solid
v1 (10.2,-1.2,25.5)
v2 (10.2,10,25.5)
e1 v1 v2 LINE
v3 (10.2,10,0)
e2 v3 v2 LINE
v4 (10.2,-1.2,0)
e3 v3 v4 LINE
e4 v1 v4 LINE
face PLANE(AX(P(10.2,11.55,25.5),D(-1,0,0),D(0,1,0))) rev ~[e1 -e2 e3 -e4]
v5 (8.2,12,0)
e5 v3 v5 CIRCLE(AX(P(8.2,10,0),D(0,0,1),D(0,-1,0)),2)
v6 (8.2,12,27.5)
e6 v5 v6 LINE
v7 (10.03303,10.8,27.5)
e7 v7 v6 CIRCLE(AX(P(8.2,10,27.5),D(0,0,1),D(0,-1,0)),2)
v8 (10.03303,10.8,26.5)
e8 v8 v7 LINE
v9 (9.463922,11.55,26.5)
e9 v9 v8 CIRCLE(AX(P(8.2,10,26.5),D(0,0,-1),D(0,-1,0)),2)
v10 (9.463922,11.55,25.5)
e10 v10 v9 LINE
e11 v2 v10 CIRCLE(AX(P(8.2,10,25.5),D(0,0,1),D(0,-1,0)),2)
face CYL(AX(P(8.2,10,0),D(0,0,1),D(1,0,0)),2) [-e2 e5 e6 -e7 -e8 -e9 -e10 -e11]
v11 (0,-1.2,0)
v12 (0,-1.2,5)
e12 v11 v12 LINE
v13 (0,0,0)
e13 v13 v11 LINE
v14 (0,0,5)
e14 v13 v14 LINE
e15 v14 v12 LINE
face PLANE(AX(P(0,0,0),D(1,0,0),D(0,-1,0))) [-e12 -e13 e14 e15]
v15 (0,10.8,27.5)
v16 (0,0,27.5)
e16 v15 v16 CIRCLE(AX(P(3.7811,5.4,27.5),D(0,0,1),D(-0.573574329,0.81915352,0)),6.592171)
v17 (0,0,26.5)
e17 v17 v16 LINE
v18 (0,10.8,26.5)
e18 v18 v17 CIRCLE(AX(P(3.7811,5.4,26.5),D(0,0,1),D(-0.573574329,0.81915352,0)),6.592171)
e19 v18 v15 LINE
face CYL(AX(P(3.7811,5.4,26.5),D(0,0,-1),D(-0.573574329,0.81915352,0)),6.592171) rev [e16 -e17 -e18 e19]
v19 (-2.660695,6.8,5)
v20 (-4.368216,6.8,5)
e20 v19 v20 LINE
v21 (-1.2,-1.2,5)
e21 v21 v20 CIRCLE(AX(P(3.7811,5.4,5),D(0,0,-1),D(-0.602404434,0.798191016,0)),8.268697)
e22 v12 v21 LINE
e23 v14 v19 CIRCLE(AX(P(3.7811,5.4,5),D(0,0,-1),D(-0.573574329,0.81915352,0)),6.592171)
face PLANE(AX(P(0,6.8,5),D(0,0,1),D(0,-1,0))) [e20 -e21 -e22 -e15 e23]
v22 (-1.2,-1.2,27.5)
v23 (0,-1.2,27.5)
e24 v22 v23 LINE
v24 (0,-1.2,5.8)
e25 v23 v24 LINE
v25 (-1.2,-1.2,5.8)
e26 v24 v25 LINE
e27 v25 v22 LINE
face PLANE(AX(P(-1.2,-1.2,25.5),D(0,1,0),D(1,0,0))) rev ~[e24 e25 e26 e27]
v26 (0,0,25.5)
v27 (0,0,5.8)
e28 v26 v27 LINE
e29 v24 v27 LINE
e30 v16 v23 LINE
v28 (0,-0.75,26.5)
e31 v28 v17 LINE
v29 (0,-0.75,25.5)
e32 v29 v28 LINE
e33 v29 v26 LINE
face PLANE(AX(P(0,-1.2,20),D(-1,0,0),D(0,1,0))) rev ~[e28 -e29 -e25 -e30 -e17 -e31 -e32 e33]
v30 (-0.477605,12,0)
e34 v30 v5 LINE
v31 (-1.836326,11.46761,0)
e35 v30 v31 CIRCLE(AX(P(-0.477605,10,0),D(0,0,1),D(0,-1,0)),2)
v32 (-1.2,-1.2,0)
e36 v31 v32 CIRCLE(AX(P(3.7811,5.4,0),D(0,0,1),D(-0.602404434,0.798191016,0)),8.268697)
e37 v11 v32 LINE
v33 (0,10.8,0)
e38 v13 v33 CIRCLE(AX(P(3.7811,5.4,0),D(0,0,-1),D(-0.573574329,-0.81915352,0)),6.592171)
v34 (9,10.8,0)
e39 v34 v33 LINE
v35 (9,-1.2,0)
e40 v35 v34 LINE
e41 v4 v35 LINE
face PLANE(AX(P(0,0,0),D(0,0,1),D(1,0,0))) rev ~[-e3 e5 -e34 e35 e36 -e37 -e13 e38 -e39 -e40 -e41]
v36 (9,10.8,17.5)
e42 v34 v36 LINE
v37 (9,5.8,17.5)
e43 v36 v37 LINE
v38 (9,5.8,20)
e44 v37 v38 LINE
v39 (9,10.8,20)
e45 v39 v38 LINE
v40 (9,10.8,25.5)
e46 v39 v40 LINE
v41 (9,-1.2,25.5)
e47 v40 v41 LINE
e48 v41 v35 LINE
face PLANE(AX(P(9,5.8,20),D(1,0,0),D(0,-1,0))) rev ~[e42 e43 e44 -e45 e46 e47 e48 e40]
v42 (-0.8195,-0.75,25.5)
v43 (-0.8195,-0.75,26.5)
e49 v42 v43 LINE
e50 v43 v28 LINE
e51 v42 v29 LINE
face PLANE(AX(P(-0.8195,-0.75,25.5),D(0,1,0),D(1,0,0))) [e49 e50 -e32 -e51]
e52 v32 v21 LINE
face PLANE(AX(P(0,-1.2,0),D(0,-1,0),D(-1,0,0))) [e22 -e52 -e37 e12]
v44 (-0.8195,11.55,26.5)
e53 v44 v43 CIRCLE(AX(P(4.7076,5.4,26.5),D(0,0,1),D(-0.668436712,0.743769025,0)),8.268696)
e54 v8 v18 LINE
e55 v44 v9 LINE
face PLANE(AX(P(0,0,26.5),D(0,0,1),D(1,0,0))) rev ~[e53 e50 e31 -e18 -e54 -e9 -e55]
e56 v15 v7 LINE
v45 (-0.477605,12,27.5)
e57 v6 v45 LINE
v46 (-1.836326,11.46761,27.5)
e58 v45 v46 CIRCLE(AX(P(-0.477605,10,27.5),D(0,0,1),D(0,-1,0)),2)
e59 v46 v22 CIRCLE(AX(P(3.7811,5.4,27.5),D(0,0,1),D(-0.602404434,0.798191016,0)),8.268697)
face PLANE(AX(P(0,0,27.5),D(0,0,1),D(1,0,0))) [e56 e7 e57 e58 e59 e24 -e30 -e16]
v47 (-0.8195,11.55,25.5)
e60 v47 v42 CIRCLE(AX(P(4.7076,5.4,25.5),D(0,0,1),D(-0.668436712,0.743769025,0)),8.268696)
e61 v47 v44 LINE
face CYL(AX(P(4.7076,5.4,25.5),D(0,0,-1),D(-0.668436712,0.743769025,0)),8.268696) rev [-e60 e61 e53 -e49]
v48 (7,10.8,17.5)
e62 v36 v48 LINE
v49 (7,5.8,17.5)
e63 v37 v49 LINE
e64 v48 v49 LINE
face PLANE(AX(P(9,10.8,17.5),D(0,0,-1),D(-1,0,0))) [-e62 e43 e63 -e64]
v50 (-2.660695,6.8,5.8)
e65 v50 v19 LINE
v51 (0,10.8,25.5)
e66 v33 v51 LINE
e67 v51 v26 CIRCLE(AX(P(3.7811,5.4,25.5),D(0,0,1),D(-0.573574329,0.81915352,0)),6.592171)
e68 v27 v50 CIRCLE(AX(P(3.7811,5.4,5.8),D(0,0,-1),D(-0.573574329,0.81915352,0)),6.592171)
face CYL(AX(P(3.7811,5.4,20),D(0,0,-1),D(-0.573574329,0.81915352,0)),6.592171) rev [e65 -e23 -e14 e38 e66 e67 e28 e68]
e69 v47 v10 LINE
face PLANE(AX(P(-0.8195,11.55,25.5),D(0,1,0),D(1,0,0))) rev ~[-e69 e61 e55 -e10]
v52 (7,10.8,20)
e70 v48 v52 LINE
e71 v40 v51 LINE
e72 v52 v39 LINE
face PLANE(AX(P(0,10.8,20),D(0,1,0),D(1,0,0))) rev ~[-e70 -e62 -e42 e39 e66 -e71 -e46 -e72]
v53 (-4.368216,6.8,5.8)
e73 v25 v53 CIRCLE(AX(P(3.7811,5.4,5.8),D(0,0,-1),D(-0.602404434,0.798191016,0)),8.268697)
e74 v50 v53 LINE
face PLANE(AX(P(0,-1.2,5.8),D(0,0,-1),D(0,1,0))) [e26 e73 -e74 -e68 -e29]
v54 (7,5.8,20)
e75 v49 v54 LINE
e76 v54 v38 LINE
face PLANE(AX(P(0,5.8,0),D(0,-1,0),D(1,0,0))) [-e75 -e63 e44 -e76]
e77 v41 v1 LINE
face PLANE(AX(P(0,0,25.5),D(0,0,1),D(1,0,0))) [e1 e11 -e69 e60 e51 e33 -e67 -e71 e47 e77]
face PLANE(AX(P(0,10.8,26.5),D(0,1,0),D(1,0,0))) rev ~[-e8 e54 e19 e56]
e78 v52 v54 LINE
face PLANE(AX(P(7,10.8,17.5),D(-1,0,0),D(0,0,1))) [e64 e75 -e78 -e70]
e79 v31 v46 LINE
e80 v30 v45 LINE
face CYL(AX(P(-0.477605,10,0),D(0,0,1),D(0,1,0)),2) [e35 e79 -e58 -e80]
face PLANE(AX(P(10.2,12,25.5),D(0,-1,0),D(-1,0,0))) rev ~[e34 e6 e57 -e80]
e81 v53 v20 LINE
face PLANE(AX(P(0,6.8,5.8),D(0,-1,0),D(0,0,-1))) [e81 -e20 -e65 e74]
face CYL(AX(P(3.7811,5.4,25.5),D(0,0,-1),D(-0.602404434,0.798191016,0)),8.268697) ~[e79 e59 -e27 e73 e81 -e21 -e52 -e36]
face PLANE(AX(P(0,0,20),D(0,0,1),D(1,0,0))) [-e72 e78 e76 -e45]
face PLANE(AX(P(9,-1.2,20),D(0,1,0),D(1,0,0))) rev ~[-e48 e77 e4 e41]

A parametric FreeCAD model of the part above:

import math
import FreeCAD as App
import Part
import Sketcher
Q = App.Units.Quantity


def edges_at(feature, points):
    """Names of the edges that pass closest to the given points."""
    edges = feature.Shape.Edges
    near = lambda p: min(range(len(edges)), key=lambda i: edges[i].distToShape(Part.Vertex(*p))[0])
    return sorted({f"Edge{near(p) + 1}" for p in points})

doc = App.newDocument("Part")
params = doc.addObject("Spreadsheet::Sheet", "Params")
for row, (alias, value) in enumerate([
    ("sketch1_width", "9 mm"),
    ("sketch1_width2", "1.2 mm"),
    ("pad1_length", "20 mm"),
    ("sketch2_width", "2 mm"),
    ("sketch2_height", "2.5 mm"),
    ("pad2_length", "5 mm"),
    ("sketch3_width", "8 mm"),
    ("sketch3_height", "0.8 mm"),
    ("sketch4_width", "9 mm"),
    ("sketch4_height", "12 mm"),
    ("sketch4_width2", "1.2 mm"),
    ("pad3_length", "5.5 mm"),
    ("sketch5_width", "11.4 mm"),
    ("sketch5_width2", "1.2 mm"),
    ("sketch5_height", "0.45 mm"),
    ("pad4_length", "1 mm"),
    ("sketch6_width", "10.2 mm"),
    ("sketch6_width2", "11.4 mm"),
    ("pad5_length", "1 mm"),
    ("fillet_radius", "2 mm"),
], start=1):
    params.set(f"A{row}", alias)
    params.set(f"B{row}", "=" + value)
    params.setAlias(f"B{row}", alias)

body = doc.addObject("PartDesign::Body", "Body")

# Sketch on XY plane
sketch1 = body.newObject("Sketcher::SketchObject", "Sketch")
sketch1.AttachmentSupport = (doc.getObject("XY_Plane"), [""])
sketch1.MapMode = "FlatFace"
sketch1.addGeometry(Part.LineSegment(App.Vector(0, -1.2, 0), App.Vector(0, 0, 0)), False)
sketch1.addGeometry(Part.ArcOfCircle(Part.Circle(App.Vector(3.8, 5.4, 0), App.Vector(0, 0, 1), 6.6), math.radians(125), math.radians(235)), False)
sketch1.addGeometry(Part.LineSegment(App.Vector(0, 10.8, 0), App.Vector(9, 10.8, 0)), False)
sketch1.addGeometry(Part.LineSegment(App.Vector(9, 10.8, 0), App.Vector(9, -1.2, 0)), False)
sketch1.addGeometry(Part.LineSegment(App.Vector(9, -1.2, 0), App.Vector(10.2, -1.2, 0)), False)
sketch1.addGeometry(Part.LineSegment(App.Vector(10.2, -1.2, 0), App.Vector(10.2, 12, 0)), False)
sketch1.addGeometry(Part.LineSegment(App.Vector(10.2, 12, 0), App.Vector(-1.2, 12, 0)), False)
sketch1.addGeometry(Part.ArcOfCircle(Part.Circle(App.Vector(3.8, 5.4, 0), App.Vector(0, 0, 1), 8.3), math.radians(127), math.radians(233)), False)
sketch1.addGeometry(Part.LineSegment(App.Vector(-1.2, -1.2, 0), App.Vector(0, -1.2, 0)), False)
sketch1.addConstraint(Sketcher.Constraint("Coincident", 0, 2, 1, 2))
sketch1.addConstraint(Sketcher.Constraint("Coincident", 1, 1, 2, 1))
sketch1.addConstraint(Sketcher.Constraint("Coincident", 2, 2, 3, 1))
sketch1.addConstraint(Sketcher.Constraint("Coincident", 3, 2, 4, 1))
sketch1.addConstraint(Sketcher.Constraint("Coincident", 4, 2, 5, 1))
sketch1.addConstraint(Sketcher.Constraint("Coincident", 5, 2, 6, 1))
sketch1.addConstraint(Sketcher.Constraint("Coincident", 6, 2, 7, 1))
sketch1.addConstraint(Sketcher.Constraint("Coincident", 7, 2, 8, 1))
sketch1.addConstraint(Sketcher.Constraint("Coincident", 8, 2, 0, 1))
sketch1.addConstraint(Sketcher.Constraint("Vertical", 0))
sketch1.addConstraint(Sketcher.Constraint("Horizontal", 2))
sketch1.addConstraint(Sketcher.Constraint("Vertical", 3))
sketch1.addConstraint(Sketcher.Constraint("Horizontal", 4))
sketch1.addConstraint(Sketcher.Constraint("Vertical", 5))
sketch1.addConstraint(Sketcher.Constraint("Horizontal", 6))
sketch1.addConstraint(Sketcher.Constraint("Horizontal", 8))
sketch1.addConstraint(Sketcher.Constraint("Coincident", 0, 2, -1, 1))
sketch1.addConstraint(Sketcher.Constraint("Coincident", 7, 3, 1, 3))
sketch1.addConstraint(Sketcher.Constraint("PointOnObject", 1, 1, -2))
sketch1.addConstraint(Sketcher.Constraint("Horizontal", 4, 2, 7, 2))
sketch1.addConstraint(Sketcher.Constraint("Vertical", 6, 2, 7, 2))
sketch1.addConstraint(Sketcher.Constraint("Equal", 4, 8))
sketch1.addConstraint(Sketcher.Constraint("Equal", 8, 0))
sketch1.addConstraint(Sketcher.Constraint("DistanceX", 2, 1, 2, 2, Q("9 mm")))
sketch1.addConstraint(Sketcher.Constraint("DistanceX", 4, 1, 4, 2, Q("1.2 mm")))
sketch1.addConstraint(Sketcher.Constraint("DistanceY", -1, 1, 1, 1, Q("10.8 mm")))
sketch1.addConstraint(Sketcher.Constraint("Radius", 1, Q("6.5922 mm")))
sketch1.setExpression("Constraints[23]", "Params.sketch1_width")
sketch1.setExpression("Constraints[24]", "Params.sketch1_width2")
pad1 = body.newObject("PartDesign::Pad", "Pad")
pad1.Profile = sketch1
pad1.setExpression("Length", "Params.pad1_length")

# Sketch on XZ plane
sketch2 = body.newObject("Sketcher::SketchObject", "Sketch001")
sketch2.AttachmentSupport = (doc.getObject("XZ_Plane"), [""])
sketch2.MapMode = "FlatFace"
sketch2.AttachmentOffset = App.Placement(App.Vector(0, 0, -10.8), App.Rotation())
sketch2.addGeometry(Part.LineSegment(App.Vector(7, 17.5, 0), App.Vector(9, 17.5, 0)), False)
sketch2.addGeometry(Part.LineSegment(App.Vector(9, 17.5, 0), App.Vector(9, 20, 0)), False)
sketch2.addGeometry(Part.LineSegment(App.Vector(9, 20, 0), App.Vector(7, 20, 0)), False)
sketch2.addGeometry(Part.LineSegment(App.Vector(7, 20, 0), App.Vector(7, 17.5, 0)), False)
sketch2.addConstraint(Sketcher.Constraint("Coincident", 0, 2, 1, 1))
sketch2.addConstraint(Sketcher.Constraint("Coincident", 1, 2, 2, 1))
sketch2.addConstraint(Sketcher.Constraint("Coincident", 2, 2, 3, 1))
sketch2.addConstraint(Sketcher.Constraint("Coincident", 3, 2, 0, 1))
sketch2.addConstraint(Sketcher.Constraint("Horizontal", 0))
sketch2.addConstraint(Sketcher.Constraint("Vertical", 1))
sketch2.addConstraint(Sketcher.Constraint("Horizontal", 2))
sketch2.addConstraint(Sketcher.Constraint("Vertical", 3))
sketch2.addConstraint(Sketcher.Constraint("DistanceX", 0, 1, 0, 2, Q("2 mm")))
sketch2.addConstraint(Sketcher.Constraint("DistanceY", 1, 1, 1, 2, Q("2.5 mm")))
sketch2.addConstraint(Sketcher.Constraint("DistanceX", -1, 1, 0, 2, Q("9 mm")))
sketch2.addConstraint(Sketcher.Constraint("DistanceY", -1, 1, 1, 2, Q("20 mm")))
sketch2.setExpression("Constraints[8]", "Params.sketch2_width")
sketch2.setExpression("Constraints[9]", "Params.sketch2_height")
pad2 = body.newObject("PartDesign::Pad", "Pad001")
pad2.Profile = sketch2
pad2.setExpression("Length", "Params.pad2_length")

# Sketch on YZ plane
sketch3 = body.newObject("Sketcher::SketchObject", "Sketch002")
sketch3.AttachmentSupport = (doc.getObject("YZ_Plane"), [""])
sketch3.MapMode = "FlatFace"
sketch3.addGeometry(Part.LineSegment(App.Vector(-1.2, 5.8, 0), App.Vector(-1.2, 5, 0)), False)
sketch3.addGeometry(Part.LineSegment(App.Vector(-1.2, 5, 0), App.Vector(6.8, 5, 0)), False)
sketch3.addGeometry(Part.LineSegment(App.Vector(6.8, 5, 0), App.Vector(6.8, 5.8, 0)), False)
sketch3.addGeometry(Part.LineSegment(App.Vector(6.8, 5.8, 0), App.Vector(-1.2, 5.8, 0)), False)
sketch3.addConstraint(Sketcher.Constraint("Coincident", 0, 2, 1, 1))
sketch3.addConstraint(Sketcher.Constraint("Coincident", 1, 2, 2, 1))
sketch3.addConstraint(Sketcher.Constraint("Coincident", 2, 2, 3, 1))
sketch3.addConstraint(Sketcher.Constraint("Coincident", 3, 2, 0, 1))
sketch3.addConstraint(Sketcher.Constraint("Vertical", 0))
sketch3.addConstraint(Sketcher.Constraint("Horizontal", 1))
sketch3.addConstraint(Sketcher.Constraint("Vertical", 2))
sketch3.addConstraint(Sketcher.Constraint("Horizontal", 3))
sketch3.addConstraint(Sketcher.Constraint("DistanceX", 1, 1, 1, 2, Q("8 mm")))
sketch3.addConstraint(Sketcher.Constraint("DistanceY", 0, 2, 0, 1, Q("0.8 mm")))
sketch3.addConstraint(Sketcher.Constraint("DistanceY", -1, 1, 0, 2, Q("5 mm")))
sketch3.addConstraint(Sketcher.Constraint("DistanceX", 0, 2, -1, 1, Q("1.2 mm")))
sketch3.setExpression("Constraints[8]", "Params.sketch3_width")
sketch3.setExpression("Constraints[9]", "Params.sketch3_height")
pocket1 = body.newObject("PartDesign::Pocket", "Pocket")
pocket1.Profile = sketch3
pocket1.Type = "ThroughAll"

# Sketch on XY plane
sketch4 = body.newObject("Sketcher::SketchObject", "Sketch003")
sketch4.AttachmentSupport = (doc.getObject("XY_Plane"), [""])
sketch4.MapMode = "FlatFace"
sketch4.AttachmentOffset = App.Placement(App.Vector(0, 0, 20), App.Rotation())
sketch4.addGeometry(Part.ArcOfCircle(Part.Circle(App.Vector(3.8, 5.4, 0), App.Vector(0, 0, 1), 6.6), math.radians(125), math.radians(235)), False)
sketch4.addGeometry(Part.LineSegment(App.Vector(0, 10.8, 0), App.Vector(9, 10.8, 0)), False)
sketch4.addGeometry(Part.LineSegment(App.Vector(9, 10.8, 0), App.Vector(9, -1.2, 0)), False)
sketch4.addGeometry(Part.LineSegment(App.Vector(9, -1.2, 0), App.Vector(10.2, -1.2, 0)), False)
sketch4.addGeometry(Part.LineSegment(App.Vector(10.2, -1.2, 0), App.Vector(10.2, 12, 0)), False)
sketch4.addGeometry(Part.LineSegment(App.Vector(10.2, 12, 0), App.Vector(-1.2, 12, 0)), False)
sketch4.addGeometry(Part.ArcOfCircle(Part.Circle(App.Vector(3.8, 5.4, 0), App.Vector(0, 0, 1), 8.3), math.radians(127), math.radians(233)), False)
sketch4.addGeometry(Part.LineSegment(App.Vector(-1.2, -1.2, 0), App.Vector(0, -1.2, 0)), False)
sketch4.addGeometry(Part.LineSegment(App.Vector(0, -1.2, 0), App.Vector(0, 0, 0)), False)
sketch4.addConstraint(Sketcher.Constraint("Coincident", 0, 1, 1, 1))
sketch4.addConstraint(Sketcher.Constraint("Coincident", 1, 2, 2, 1))
sketch4.addConstraint(Sketcher.Constraint("Coincident", 2, 2, 3, 1))
sketch4.addConstraint(Sketcher.Constraint("Coincident", 3, 2, 4, 1))
sketch4.addConstraint(Sketcher.Constraint("Coincident", 4, 2, 5, 1))
sketch4.addConstraint(Sketcher.Constraint("Coincident", 5, 2, 6, 1))
sketch4.addConstraint(Sketcher.Constraint("Coincident", 6, 2, 7, 1))
sketch4.addConstraint(Sketcher.Constraint("Coincident", 7, 2, 8, 1))
sketch4.addConstraint(Sketcher.Constraint("Coincident", 8, 2, 0, 2))
sketch4.addConstraint(Sketcher.Constraint("Horizontal", 1))
sketch4.addConstraint(Sketcher.Constraint("Vertical", 2))
sketch4.addConstraint(Sketcher.Constraint("Horizontal", 3))
sketch4.addConstraint(Sketcher.Constraint("Vertical", 4))
sketch4.addConstraint(Sketcher.Constraint("Horizontal", 5))
sketch4.addConstraint(Sketcher.Constraint("Horizontal", 7))
sketch4.addConstraint(Sketcher.Constraint("Vertical", 8))
sketch4.addConstraint(Sketcher.Constraint("Coincident", 8, 2, -1, 1))
sketch4.addConstraint(Sketcher.Constraint("Coincident", 6, 3, 0, 3))
sketch4.addConstraint(Sketcher.Constraint("PointOnObject", 0, 1, -2))
sketch4.addConstraint(Sketcher.Constraint("Horizontal", 3, 2, 6, 2))
sketch4.addConstraint(Sketcher.Constraint("Vertical", 5, 2, 6, 2))
sketch4.addConstraint(Sketcher.Constraint("Equal", 3, 7))
sketch4.addConstraint(Sketcher.Constraint("Equal", 7, 8))
sketch4.addConstraint(Sketcher.Constraint("DistanceX", 1, 1, 1, 2, Q("9 mm")))
sketch4.addConstraint(Sketcher.Constraint("DistanceY", 2, 2, 2, 1, Q("12 mm")))
sketch4.addConstraint(Sketcher.Constraint("DistanceX", 3, 1, 3, 2, Q("1.2 mm")))
sketch4.addConstraint(Sketcher.Constraint("Radius", 0, Q("6.5922 mm")))
sketch4.setExpression("Constraints[23]", "Params.sketch4_width")
sketch4.setExpression("Constraints[24]", "Params.sketch4_height")
sketch4.setExpression("Constraints[25]", "Params.sketch4_width2")
pad3 = body.newObject("PartDesign::Pad", "Pad002")
pad3.Profile = sketch4
pad3.setExpression("Length", "Params.pad3_length")

# Sketch on XY plane
sketch5 = body.newObject("Sketcher::SketchObject", "Sketch004")
sketch5.AttachmentSupport = (doc.getObject("XY_Plane"), [""])
sketch5.MapMode = "FlatFace"
sketch5.AttachmentOffset = App.Placement(App.Vector(0, 0, 25.5), App.Rotation())
sketch5.addGeometry(Part.LineSegment(App.Vector(-0.82, 11.55, 0), App.Vector(10.2, 11.55, 0)), False)
sketch5.addGeometry(Part.LineSegment(App.Vector(10.2, 11.55, 0), App.Vector(10.2, 12, 0)), False)
sketch5.addGeometry(Part.LineSegment(App.Vector(10.2, 12, 0), App.Vector(-1.2, 12, 0)), False)
sketch5.addGeometry(Part.ArcOfCircle(Part.Circle(App.Vector(3.78, 5.4, 0), App.Vector(0, 0, 1), 8.27), math.radians(127), math.radians(233)), False)
sketch5.addGeometry(Part.LineSegment(App.Vector(-1.2, -1.2, 0), App.Vector(0, -1.2, 0)), False)
sketch5.addGeometry(Part.LineSegment(App.Vector(0, -1.2, 0), App.Vector(0, -0.75, 0)), False)
sketch5.addGeometry(Part.LineSegment(App.Vector(0, -0.75, 0), App.Vector(-0.82, -0.75, 0)), False)
sketch5.addGeometry(Part.ArcOfCircle(Part.Circle(App.Vector(4.71, 5.4, 0), App.Vector(0, 0, 1), 8.27), math.radians(132), math.radians(228)), False)
sketch5.addConstraint(Sketcher.Constraint("Coincident", 0, 2, 1, 1))
sketch5.addConstraint(Sketcher.Constraint("Coincident", 1, 2, 2, 1))
sketch5.addConstraint(Sketcher.Constraint("Coincident", 2, 2, 3, 1))
sketch5.addConstraint(Sketcher.Constraint("Coincident", 3, 2, 4, 1))
sketch5.addConstraint(Sketcher.Constraint("Coincident", 4, 2, 5, 1))
sketch5.addConstraint(Sketcher.Constraint("Coincident", 5, 2, 6, 1))
sketch5.addConstraint(Sketcher.Constraint("Coincident", 6, 2, 7, 2))
sketch5.addConstraint(Sketcher.Constraint("Coincident", 7, 1, 0, 1))
sketch5.addConstraint(Sketcher.Constraint("Horizontal", 0))
sketch5.addConstraint(Sketcher.Constraint("Vertical", 1))
sketch5.addConstraint(Sketcher.Constraint("Horizontal", 2))
sketch5.addConstraint(Sketcher.Constraint("Horizontal", 4))
sketch5.addConstraint(Sketcher.Constraint("Vertical", 5))
sketch5.addConstraint(Sketcher.Constraint("Horizontal", 6))
sketch5.addConstraint(Sketcher.Constraint("Equal", 3, 7))
sketch5.addConstraint(Sketcher.Constraint("PointOnObject", 4, 2, -2))
sketch5.addConstraint(Sketcher.Constraint("Horizontal", 3, 3, 7, 3))
sketch5.addConstraint(Sketcher.Constraint("Vertical", 2, 2, 3, 2))
sketch5.addConstraint(Sketcher.Constraint("Vertical", 6, 2, 7, 1))
sketch5.addConstraint(Sketcher.Constraint("DistanceY", 5, 2, -1, 1, Q("0.75 mm")))
sketch5.addConstraint(Sketcher.Constraint("DistanceX", 2, 2, 2, 1, Q("11.4 mm")))
sketch5.addConstraint(Sketcher.Constraint("DistanceX", 4, 1, 4, 2, Q("1.2 mm")))
sketch5.addConstraint(Sketcher.Constraint("DistanceY", -1, 1, 1, 2, Q("12 mm")))
sketch5.addConstraint(Sketcher.Constraint("DistanceY", 1, 1, 1, 2, Q("0.45 mm")))
sketch5.addConstraint(Sketcher.Constraint("Radius", 3, Q("8.2687 mm")))
sketch5.addConstraint(Sketcher.Constraint("DistanceX", 0, 1, 0, 2, Q("11.0195 mm")))
sketch5.setExpression("Constraints[20]", "Params.sketch5_width")
sketch5.setExpression("Constraints[21]", "Params.sketch5_width2")
sketch5.setExpression("Constraints[23]", "Params.sketch5_height")
pad4 = body.newObject("PartDesign::Pad", "Pad003")
pad4.Profile = sketch5
pad4.setExpression("Length", "Params.pad4_length")

# Sketch on XY plane
sketch6 = body.newObject("Sketcher::SketchObject", "Sketch005")
sketch6.AttachmentSupport = (doc.getObject("XY_Plane"), [""])
sketch6.MapMode = "FlatFace"
sketch6.AttachmentOffset = App.Placement(App.Vector(0, 0, 26.5), App.Rotation())
sketch6.addGeometry(Part.LineSegment(App.Vector(0, -1.2, 0), App.Vector(0, 0, 0)), False)
sketch6.addGeometry(Part.ArcOfCircle(Part.Circle(App.Vector(3.8, 5.4, 0), App.Vector(0, 0, 1), 6.6), math.radians(125), math.radians(235)), False)
sketch6.addGeometry(Part.LineSegment(App.Vector(0, 10.8, 0), App.Vector(10.2, 10.8, 0)), False)
sketch6.addGeometry(Part.LineSegment(App.Vector(10.2, 10.8, 0), App.Vector(10.2, 12, 0)), False)
sketch6.addGeometry(Part.LineSegment(App.Vector(10.2, 12, 0), App.Vector(-1.2, 12, 0)), False)
sketch6.addGeometry(Part.ArcOfCircle(Part.Circle(App.Vector(3.8, 5.4, 0), App.Vector(0, 0, 1), 8.3), math.radians(127), math.radians(233)), False)
sketch6.addGeometry(Part.LineSegment(App.Vector(-1.2, -1.2, 0), App.Vector(0, -1.2, 0)), False)
sketch6.addConstraint(Sketcher.Constraint("Coincident", 0, 2, 1, 2))
sketch6.addConstraint(Sketcher.Constraint("Coincident", 1, 1, 2, 1))
sketch6.addConstraint(Sketcher.Constraint("Coincident", 2, 2, 3, 1))
sketch6.addConstraint(Sketcher.Constraint("Coincident", 3, 2, 4, 1))
sketch6.addConstraint(Sketcher.Constraint("Coincident", 4, 2, 5, 1))
sketch6.addConstraint(Sketcher.Constraint("Coincident", 5, 2, 6, 1))
sketch6.addConstraint(Sketcher.Constraint("Coincident", 6, 2, 0, 1))
sketch6.addConstraint(Sketcher.Constraint("Vertical", 0))
sketch6.addConstraint(Sketcher.Constraint("Horizontal", 2))
sketch6.addConstraint(Sketcher.Constraint("Vertical", 3))
sketch6.addConstraint(Sketcher.Constraint("Horizontal", 4))
sketch6.addConstraint(Sketcher.Constraint("Horizontal", 6))
sketch6.addConstraint(Sketcher.Constraint("Coincident", 0, 2, -1, 1))
sketch6.addConstraint(Sketcher.Constraint("Coincident", 5, 3, 1, 3))
sketch6.addConstraint(Sketcher.Constraint("PointOnObject", 1, 1, -2))
sketch6.addConstraint(Sketcher.Constraint("Vertical", 4, 2, 5, 2))
sketch6.addConstraint(Sketcher.Constraint("Equal", 6, 0))
sketch6.addConstraint(Sketcher.Constraint("DistanceX", 2, 1, 2, 2, Q("10.2 mm")))
sketch6.addConstraint(Sketcher.Constraint("DistanceX", 4, 2, 4, 1, Q("11.4 mm")))
sketch6.addConstraint(Sketcher.Constraint("DistanceY", -1, 1, 3, 2, Q("12 mm")))
sketch6.addConstraint(Sketcher.Constraint("Radius", 1, Q("6.5922 mm")))
sketch6.setExpression("Constraints[17]", "Params.sketch6_width")
sketch6.setExpression("Constraints[18]", "Params.sketch6_width2")
pad5 = body.newObject("PartDesign::Pad", "Pad004")
pad5.Profile = sketch6
pad5.setExpression("Length", "Params.pad5_length")
doc.recompute()

fillet = body.newObject("PartDesign::Fillet", "Fillet")
fillet.Base = (pad5, edges_at(pad5, [(10.2, 12, 13.75), (-1.2, 12, 13.75)]))
fillet.setExpression("Radius", "Params.fillet_radius")

doc.recompute()
